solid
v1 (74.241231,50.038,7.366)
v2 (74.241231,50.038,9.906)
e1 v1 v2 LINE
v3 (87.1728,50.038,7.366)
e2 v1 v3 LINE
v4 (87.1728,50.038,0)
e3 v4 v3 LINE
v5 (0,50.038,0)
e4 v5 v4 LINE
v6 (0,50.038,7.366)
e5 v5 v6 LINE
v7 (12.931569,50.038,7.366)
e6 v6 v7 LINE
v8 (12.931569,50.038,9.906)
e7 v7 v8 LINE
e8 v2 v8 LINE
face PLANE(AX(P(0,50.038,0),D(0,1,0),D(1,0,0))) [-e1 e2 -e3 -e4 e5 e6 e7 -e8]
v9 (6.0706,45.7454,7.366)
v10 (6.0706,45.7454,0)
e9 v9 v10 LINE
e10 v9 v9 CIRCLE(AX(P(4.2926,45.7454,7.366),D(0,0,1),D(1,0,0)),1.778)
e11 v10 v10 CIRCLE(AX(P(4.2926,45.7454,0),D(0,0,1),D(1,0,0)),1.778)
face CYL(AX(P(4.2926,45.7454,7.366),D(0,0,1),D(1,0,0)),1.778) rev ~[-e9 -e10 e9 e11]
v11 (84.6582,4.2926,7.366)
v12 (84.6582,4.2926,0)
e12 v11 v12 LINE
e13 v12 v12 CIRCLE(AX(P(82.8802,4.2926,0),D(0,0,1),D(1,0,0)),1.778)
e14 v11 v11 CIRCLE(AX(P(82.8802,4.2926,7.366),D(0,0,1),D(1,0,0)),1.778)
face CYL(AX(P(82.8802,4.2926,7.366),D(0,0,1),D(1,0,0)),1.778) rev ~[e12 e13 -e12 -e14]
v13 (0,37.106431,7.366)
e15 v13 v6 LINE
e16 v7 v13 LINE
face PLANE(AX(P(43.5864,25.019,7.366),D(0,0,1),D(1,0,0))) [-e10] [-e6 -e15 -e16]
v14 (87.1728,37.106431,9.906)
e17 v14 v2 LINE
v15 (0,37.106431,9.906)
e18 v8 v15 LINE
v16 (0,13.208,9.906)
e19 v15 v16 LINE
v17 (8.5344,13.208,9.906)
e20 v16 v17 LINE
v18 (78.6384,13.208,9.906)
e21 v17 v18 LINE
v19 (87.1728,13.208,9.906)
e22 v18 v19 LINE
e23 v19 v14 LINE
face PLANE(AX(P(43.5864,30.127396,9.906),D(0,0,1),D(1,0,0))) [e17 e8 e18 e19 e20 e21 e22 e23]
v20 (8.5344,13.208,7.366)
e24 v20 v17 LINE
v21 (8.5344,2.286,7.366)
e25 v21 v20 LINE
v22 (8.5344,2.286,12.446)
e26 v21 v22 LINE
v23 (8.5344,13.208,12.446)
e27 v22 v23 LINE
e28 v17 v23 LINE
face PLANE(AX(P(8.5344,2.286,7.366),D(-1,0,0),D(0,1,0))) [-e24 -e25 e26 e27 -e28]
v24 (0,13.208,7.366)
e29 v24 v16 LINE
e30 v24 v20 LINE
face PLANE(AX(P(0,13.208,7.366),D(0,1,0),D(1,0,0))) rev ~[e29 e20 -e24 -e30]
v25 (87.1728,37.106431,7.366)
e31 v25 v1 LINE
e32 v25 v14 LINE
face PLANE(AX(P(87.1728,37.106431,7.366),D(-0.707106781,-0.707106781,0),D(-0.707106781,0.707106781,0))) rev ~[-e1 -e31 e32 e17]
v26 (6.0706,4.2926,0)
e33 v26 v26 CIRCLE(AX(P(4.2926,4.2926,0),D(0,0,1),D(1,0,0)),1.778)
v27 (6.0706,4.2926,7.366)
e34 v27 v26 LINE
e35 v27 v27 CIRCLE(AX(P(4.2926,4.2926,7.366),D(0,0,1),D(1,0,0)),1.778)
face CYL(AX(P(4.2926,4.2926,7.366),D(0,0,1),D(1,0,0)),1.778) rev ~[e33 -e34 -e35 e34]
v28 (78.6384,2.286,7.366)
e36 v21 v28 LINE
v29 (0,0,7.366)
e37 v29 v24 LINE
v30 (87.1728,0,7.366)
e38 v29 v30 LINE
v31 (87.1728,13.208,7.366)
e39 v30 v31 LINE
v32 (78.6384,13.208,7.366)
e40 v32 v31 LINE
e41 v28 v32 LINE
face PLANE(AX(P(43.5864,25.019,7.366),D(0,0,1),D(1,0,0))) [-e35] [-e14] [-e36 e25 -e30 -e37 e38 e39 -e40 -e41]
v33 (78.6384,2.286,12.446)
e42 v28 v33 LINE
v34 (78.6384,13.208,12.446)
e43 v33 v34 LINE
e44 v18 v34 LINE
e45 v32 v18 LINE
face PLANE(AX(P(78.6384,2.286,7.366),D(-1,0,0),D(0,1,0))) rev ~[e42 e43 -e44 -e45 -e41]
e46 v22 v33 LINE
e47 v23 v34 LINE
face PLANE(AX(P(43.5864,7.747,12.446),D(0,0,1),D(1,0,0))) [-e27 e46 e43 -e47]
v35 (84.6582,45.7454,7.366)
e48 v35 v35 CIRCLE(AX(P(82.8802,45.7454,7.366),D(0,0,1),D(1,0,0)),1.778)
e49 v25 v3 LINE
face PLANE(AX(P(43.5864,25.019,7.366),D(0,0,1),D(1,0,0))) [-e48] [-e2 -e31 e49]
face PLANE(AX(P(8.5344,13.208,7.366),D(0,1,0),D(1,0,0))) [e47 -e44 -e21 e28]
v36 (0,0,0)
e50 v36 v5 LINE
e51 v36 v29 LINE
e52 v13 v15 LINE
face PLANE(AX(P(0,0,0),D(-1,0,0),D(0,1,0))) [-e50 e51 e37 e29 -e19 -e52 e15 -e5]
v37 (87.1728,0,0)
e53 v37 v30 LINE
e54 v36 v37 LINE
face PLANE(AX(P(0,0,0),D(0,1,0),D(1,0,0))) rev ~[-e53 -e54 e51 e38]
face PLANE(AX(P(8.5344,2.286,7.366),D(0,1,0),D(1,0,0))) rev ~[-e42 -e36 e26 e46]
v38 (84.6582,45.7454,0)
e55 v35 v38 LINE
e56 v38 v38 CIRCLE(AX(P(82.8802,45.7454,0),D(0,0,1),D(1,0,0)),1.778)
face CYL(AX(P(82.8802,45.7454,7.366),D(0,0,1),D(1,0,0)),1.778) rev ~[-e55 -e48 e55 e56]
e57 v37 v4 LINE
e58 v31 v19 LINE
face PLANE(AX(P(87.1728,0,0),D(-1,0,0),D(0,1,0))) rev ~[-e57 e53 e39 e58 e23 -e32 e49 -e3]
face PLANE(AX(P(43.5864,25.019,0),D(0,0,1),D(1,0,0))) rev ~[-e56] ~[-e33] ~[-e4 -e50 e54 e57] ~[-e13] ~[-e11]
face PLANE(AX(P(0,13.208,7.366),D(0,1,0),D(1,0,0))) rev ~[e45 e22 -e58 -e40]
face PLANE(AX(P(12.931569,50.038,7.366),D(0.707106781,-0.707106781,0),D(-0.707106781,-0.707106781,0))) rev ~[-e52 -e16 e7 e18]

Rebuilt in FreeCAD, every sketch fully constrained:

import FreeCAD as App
import Part
import Sketcher
from FreeCAD import Vector
Q = App.Units.Quantity

doc = App.newDocument("Part")
body = doc.addObject("PartDesign::Body", "Body")

# Sketch on XY plane
sketch1 = body.newObject("Sketcher::SketchObject", "Sketch")
sketch1.AttachmentSupport = (doc.getObject("XY_Plane"), [""])
sketch1.MapMode = "FlatFace"
sketch1.addGeometry([
    Part.LineSegment(Vector(0, 50.038, 0), Vector(0, 0, 0)),
    Part.LineSegment(Vector(0, 0, 0), Vector(87.1728, 0, 0)),
    Part.LineSegment(Vector(87.1728, 0, 0), Vector(87.1728, 50.038, 0)),
    Part.LineSegment(Vector(87.1728, 50.038, 0), Vector(0, 50.038, 0)),
], False)
sketch1.addConstraint([
    Sketcher.Constraint("Coincident", 0, 2, 1, 1),
    Sketcher.Constraint("Coincident", 1, 2, 2, 1),
    Sketcher.Constraint("Coincident", 2, 2, 3, 1),
    Sketcher.Constraint("Coincident", 3, 2, 0, 1),
    Sketcher.Constraint("Vertical", 0),
    Sketcher.Constraint("Horizontal", 1),
    Sketcher.Constraint("Vertical", 2),
    Sketcher.Constraint("Horizontal", 3),
    Sketcher.Constraint("Coincident", 0, 2, -1, 1),
    Sketcher.Constraint("DistanceY", 0, 2, 0, 1, Q("1.97 in")),
    Sketcher.Constraint("DistanceX", 1, 1, 1, 2, Q("3.432 in")),
])
pad1 = body.newObject("PartDesign::Pad", "Pad")
pad1.Profile = sketch1
pad1.Length = Q("0.29 in")

# Sketch on XY plane
sketch2 = body.newObject("Sketcher::SketchObject", "Sketch001")
sketch2.AttachmentSupport = (doc.getObject("XY_Plane"), [""])
sketch2.MapMode = "FlatFace"
sketch2.AttachmentOffset = App.Placement(Vector(0, 0, 0.29 * 25.4), App.Rotation())
sketch2.addGeometry([
    Part.LineSegment(Vector(0, 37.106431, 0), Vector(0, 13.208, 0)),  # 0
    Part.LineSegment(Vector(0, 13.208, 0), Vector(87.1728, 13.208, 0)),  # 1
    Part.LineSegment(Vector(87.1728, 13.208, 0), Vector(87.1728, 37.106431, 0)),  # 2
    Part.LineSegment(Vector(87.1728, 37.106431, 0), Vector(74.241231, 50.038, 0)),  # 3
    Part.LineSegment(Vector(74.241231, 50.038, 0), Vector(12.931569, 50.038, 0)),  # 4
    Part.LineSegment(Vector(12.931569, 50.038, 0), Vector(0, 37.106431, 0)),  # 5
], False)
sketch2.addConstraint([
    Sketcher.Constraint("Coincident", 0, 2, 1, 1),
    Sketcher.Constraint("Coincident", 1, 2, 2, 1),
    Sketcher.Constraint("Coincident", 2, 2, 3, 1),
    Sketcher.Constraint("Coincident", 3, 2, 4, 1),
    Sketcher.Constraint("Coincident", 4, 2, 5, 1),
    Sketcher.Constraint("Coincident", 5, 2, 0, 1),
    Sketcher.Constraint("Vertical", 0),
    Sketcher.Constraint("Horizontal", 1),
    Sketcher.Constraint("Vertical", 2),
    Sketcher.Constraint("Horizontal", 4),
    Sketcher.Constraint("PointOnObject", 0, 2, -2),
    Sketcher.Constraint("Perpendicular", 3, 5),
    Sketcher.Constraint("Horizontal", 2, 2, 5, 2),
    Sketcher.Constraint("Equal", 3, 5),
    Sketcher.Constraint("Distance", 3, Q("0.72 in")),
    Sketcher.Constraint("DistanceX", 1, 1, 1, 2, Q("3.432 in")),
    Sketcher.Constraint("DistanceY", -1, 1, 0, 2, Q("0.52 in")),
    Sketcher.Constraint("DistanceY", -1, 1, 3, 2, Q("1.97 in")),
])
pad2 = body.newObject("PartDesign::Pad", "Pad001")
pad2.Profile = sketch2
pad2.Length = Q("0.1 in")

# Sketch on XY plane
sketch3 = body.newObject("Sketcher::SketchObject", "Sketch002")
sketch3.AttachmentSupport = (doc.getObject("XY_Plane"), [""])
sketch3.MapMode = "FlatFace"
sketch3.AttachmentOffset = App.Placement(Vector(0, 0, 0.29 * 25.4), App.Rotation())
sketch3.addGeometry([
    Part.LineSegment(Vector(8.5344, 13.208, 0), Vector(8.5344, 2.286, 0)),
    Part.LineSegment(Vector(8.5344, 2.286, 0), Vector(78.6384, 2.286, 0)),
    Part.LineSegment(Vector(78.6384, 2.286, 0), Vector(78.6384, 13.208, 0)),
    Part.LineSegment(Vector(78.6384, 13.208, 0), Vector(8.5344, 13.208, 0)),
], False)
sketch3.addConstraint([
    Sketcher.Constraint("Coincident", 0, 2, 1, 1),
    Sketcher.Constraint("Coincident", 1, 2, 2, 1),
    Sketcher.Constraint("Coincident", 2, 2, 3, 1),
    Sketcher.Constraint("Coincident", 3, 2, 0, 1),
    Sketcher.Constraint("Vertical", 0),
    Sketcher.Constraint("Horizontal", 1),
    Sketcher.Constraint("Vertical", 2),
    Sketcher.Constraint("Horizontal", 3),
    Sketcher.Constraint("DistanceX", 1, 1, 1, 2, Q("2.76 in")),
    Sketcher.Constraint("DistanceY", 0, 2, 0, 1, Q("0.43 in")),
    Sketcher.Constraint("DistanceY", -1, 1, 0, 2, Q("0.09 in")),
    Sketcher.Constraint("DistanceX", -1, 1, 0, 2, Q("0.336 in")),
])
pad3 = body.newObject("PartDesign::Pad", "Pad002")
pad3.Profile = sketch3
pad3.Length = Q("0.2 in")

# Sketch on XY plane
sketch4 = body.newObject("Sketcher::SketchObject", "Sketch003")
sketch4.AttachmentSupport = (doc.getObject("XY_Plane"), [""])
sketch4.MapMode = "FlatFace"
sketch4.AttachmentOffset = App.Placement(Vector(0, 0, 0.29 * 25.4), App.Rotation())
sketch4.addGeometry([
    Part.Circle(Vector(4.2926, 45.7454, 0), Vector(0, 0, 1), 1.778),
    Part.Circle(Vector(4.2926, 4.2926, 0), Vector(0, 0, 1), 1.778),
    Part.Circle(Vector(82.8802, 4.2926, 0), Vector(0, 0, 1), 1.778),
    Part.Circle(Vector(82.8802, 45.7454, 0), Vector(0, 0, 1), 1.778),
], False)
sketch4.addConstraint([
    Sketcher.Constraint("Equal", 0, 1),
    Sketcher.Constraint("Equal", 1, 2),
    Sketcher.Constraint("Equal", 2, 3),
    Sketcher.Constraint("Horizontal", 1, 3, 2, 3),
    Sketcher.Constraint("Horizontal", 0, 3, 3, 3),
    Sketcher.Constraint("Vertical", 0, 3, 1, 3),
    Sketcher.Constraint("Vertical", 2, 3, 3, 3),
    Sketcher.Constraint("Diameter", 0, Q("0.14 in")),
    Sketcher.Constraint("DistanceX", -1, 1, 0, 3, Q("0.169 in")),
    Sketcher.Constraint("DistanceY", -1, 1, 0, 3, Q("1.801 in")),
    Sketcher.Constraint("DistanceY", -1, 1, 1, 3, Q("0.169 in")),
    Sketcher.Constraint("DistanceX", -1, 1, 2, 3, Q("3.263 in")),
])
pocket1 = body.newObject("PartDesign::Pocket", "Pocket")
pocket1.Profile = sketch4
pocket1.Type = "ThroughAll"

doc.recompute()
